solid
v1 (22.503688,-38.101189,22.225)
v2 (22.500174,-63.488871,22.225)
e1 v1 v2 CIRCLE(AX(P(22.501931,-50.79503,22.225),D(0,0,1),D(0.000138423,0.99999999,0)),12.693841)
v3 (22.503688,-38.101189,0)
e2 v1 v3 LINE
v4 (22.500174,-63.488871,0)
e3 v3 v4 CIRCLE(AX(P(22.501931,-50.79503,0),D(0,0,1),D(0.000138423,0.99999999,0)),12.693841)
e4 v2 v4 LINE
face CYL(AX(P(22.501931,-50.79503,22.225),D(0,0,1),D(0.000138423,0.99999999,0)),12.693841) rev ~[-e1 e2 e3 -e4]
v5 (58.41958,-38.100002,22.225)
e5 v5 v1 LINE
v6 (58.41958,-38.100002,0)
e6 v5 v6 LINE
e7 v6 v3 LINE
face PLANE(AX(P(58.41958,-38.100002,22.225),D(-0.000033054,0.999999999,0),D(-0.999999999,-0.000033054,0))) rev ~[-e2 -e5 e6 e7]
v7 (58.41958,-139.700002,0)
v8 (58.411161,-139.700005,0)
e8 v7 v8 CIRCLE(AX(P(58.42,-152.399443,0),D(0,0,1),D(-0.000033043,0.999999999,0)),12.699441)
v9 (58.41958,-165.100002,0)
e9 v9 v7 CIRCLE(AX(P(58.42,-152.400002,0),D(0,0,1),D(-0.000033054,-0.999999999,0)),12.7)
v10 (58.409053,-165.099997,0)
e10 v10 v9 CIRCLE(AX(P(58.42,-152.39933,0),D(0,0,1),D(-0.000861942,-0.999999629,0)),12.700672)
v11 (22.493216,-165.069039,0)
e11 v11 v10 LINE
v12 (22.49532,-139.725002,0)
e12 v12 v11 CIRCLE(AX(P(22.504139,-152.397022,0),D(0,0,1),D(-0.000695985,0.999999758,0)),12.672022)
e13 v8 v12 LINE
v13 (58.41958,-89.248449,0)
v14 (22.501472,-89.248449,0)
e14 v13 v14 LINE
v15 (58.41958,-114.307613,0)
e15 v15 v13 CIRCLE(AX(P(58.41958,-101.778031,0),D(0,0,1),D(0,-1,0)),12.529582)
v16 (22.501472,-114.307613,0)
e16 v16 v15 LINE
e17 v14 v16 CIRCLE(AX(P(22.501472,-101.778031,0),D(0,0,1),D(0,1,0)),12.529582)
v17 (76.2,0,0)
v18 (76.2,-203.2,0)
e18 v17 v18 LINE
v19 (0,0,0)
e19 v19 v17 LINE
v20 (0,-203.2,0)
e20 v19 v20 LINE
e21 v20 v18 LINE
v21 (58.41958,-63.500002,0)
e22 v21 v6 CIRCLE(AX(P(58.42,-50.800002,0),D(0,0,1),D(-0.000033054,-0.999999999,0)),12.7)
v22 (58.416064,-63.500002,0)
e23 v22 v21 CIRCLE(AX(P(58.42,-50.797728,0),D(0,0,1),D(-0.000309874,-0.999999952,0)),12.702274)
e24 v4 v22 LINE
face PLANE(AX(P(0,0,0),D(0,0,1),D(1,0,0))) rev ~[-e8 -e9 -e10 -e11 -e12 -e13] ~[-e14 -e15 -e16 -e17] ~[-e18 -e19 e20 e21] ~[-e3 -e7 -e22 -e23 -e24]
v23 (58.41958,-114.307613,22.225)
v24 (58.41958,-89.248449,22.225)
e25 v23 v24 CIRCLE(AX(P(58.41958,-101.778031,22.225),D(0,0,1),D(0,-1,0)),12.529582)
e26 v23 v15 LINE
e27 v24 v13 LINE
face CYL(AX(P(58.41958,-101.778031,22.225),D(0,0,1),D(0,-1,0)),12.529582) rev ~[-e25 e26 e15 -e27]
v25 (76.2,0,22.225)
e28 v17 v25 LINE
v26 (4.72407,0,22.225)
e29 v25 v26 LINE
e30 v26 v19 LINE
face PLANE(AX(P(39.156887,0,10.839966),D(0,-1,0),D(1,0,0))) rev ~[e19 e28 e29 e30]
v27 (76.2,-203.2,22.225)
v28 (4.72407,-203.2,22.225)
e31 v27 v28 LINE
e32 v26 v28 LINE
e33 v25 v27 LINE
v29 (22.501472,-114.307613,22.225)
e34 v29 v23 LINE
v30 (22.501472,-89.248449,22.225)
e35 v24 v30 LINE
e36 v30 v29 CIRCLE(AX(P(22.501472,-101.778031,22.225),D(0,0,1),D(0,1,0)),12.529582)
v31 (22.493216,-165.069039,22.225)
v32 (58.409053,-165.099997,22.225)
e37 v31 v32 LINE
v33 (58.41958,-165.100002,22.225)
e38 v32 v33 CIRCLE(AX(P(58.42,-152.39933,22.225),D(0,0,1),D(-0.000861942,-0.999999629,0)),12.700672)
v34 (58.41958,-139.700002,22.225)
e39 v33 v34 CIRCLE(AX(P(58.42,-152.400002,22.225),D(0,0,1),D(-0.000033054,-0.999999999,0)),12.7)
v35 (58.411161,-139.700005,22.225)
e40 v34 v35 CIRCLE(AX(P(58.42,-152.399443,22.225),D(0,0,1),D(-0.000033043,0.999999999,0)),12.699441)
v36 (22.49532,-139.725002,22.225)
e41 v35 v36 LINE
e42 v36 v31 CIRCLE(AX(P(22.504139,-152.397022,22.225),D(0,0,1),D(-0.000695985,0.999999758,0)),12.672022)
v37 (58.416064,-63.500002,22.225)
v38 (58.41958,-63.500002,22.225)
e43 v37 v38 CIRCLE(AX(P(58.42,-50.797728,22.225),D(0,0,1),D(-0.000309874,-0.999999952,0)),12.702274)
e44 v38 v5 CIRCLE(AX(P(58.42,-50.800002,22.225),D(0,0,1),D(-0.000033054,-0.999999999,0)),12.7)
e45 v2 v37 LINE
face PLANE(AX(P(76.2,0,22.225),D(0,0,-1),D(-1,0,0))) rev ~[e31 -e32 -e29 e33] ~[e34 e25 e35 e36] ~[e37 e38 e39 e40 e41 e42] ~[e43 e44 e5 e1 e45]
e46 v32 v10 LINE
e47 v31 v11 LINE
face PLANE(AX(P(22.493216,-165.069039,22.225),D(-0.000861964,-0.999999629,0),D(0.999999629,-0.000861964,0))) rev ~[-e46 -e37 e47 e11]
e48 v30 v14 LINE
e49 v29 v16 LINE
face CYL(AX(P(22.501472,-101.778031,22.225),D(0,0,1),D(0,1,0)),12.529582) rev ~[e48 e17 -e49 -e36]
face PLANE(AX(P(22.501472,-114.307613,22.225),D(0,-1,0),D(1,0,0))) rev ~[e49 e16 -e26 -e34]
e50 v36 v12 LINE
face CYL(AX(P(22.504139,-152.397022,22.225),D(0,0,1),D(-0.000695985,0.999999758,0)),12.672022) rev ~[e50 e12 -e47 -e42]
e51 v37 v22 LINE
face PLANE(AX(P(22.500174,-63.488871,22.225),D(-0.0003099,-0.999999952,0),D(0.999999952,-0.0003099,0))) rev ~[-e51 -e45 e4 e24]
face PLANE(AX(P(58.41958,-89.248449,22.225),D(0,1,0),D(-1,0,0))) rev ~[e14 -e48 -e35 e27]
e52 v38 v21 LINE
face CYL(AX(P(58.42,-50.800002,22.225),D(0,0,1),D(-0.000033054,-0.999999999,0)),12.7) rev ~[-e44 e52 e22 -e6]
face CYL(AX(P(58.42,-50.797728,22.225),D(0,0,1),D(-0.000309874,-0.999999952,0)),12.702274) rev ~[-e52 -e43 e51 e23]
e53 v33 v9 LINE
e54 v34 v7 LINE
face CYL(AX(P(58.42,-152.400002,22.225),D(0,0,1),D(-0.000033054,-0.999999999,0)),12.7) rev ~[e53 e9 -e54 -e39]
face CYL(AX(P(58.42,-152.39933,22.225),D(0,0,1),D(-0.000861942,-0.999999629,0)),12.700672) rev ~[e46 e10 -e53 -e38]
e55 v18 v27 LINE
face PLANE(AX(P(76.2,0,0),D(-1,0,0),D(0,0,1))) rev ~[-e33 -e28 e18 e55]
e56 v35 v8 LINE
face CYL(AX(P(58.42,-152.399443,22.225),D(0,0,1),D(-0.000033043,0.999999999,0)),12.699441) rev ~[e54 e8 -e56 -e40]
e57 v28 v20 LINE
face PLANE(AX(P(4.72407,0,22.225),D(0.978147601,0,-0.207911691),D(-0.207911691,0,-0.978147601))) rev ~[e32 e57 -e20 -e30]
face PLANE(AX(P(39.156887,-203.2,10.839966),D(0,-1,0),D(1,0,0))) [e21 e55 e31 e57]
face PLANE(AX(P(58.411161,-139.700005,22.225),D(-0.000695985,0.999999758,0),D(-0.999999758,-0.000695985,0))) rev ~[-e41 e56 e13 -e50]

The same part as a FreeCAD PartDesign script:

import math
import FreeCAD as App
import Part
import Sketcher
from FreeCAD import Vector
Q = App.Units.Quantity


def add_polygon(sketch, points):
    """Adds a closed chain of lines whose ends are joined by coincident constraints."""
    first, n = sketch.GeometryCount, len(points)
    for a, b in zip(points, points[1:] + points[:1]):
        sketch.addGeometry(Part.LineSegment(App.Vector(*a, 0), App.Vector(*b, 0)), False)
    for i in range(n):
        sketch.addConstraint(Sketcher.Constraint("Coincident", first + i, 2, first + (i + 1) % n, 1))

doc = App.newDocument("Part")
body = doc.addObject("PartDesign::Body", "Body")

# Sketch on XZ plane
sketch1 = body.newObject("Sketcher::SketchObject", "Sketch")
sketch1.AttachmentSupport = (doc.getObject("XZ_Plane"), [""])
sketch1.MapMode = "FlatFace"
add_polygon(sketch1, [(5, 22), (0, 0), (76, 0), (76, 22)])  # lines 0-3
sketch1.addConstraint([
    Sketcher.Constraint("Horizontal", 1),
    Sketcher.Constraint("Vertical", 2),
    Sketcher.Constraint("Horizontal", 3),
    Sketcher.Constraint("Coincident", 0, 2, -1, 1),
    Sketcher.Constraint("DistanceX", 1, 1, 1, 2, Q("3 in")),
    Sketcher.Constraint("Angle", 0, Q("-102 deg")),
    Sketcher.Constraint("DistanceY", 2, 1, 2, 2, Q("0.875 in")),
])
pad1 = body.newObject("PartDesign::Pad", "Pad")
pad1.Profile = sketch1
pad1.Length = Q("8 in")

# Sketch on XZ plane
sketch2 = body.newObject("Sketcher::SketchObject", "Sketch001")
sketch2.AttachmentSupport = (doc.getObject("XZ_Plane"), [""])
sketch2.MapMode = "FlatFace"
add_polygon(sketch2, [(5, 22), (0, 0), (76, 0), (76, 22)])  # lines 0-3
sketch2.addConstraint([
    Sketcher.Constraint("Horizontal", 1),
    Sketcher.Constraint("Vertical", 2),
    Sketcher.Constraint("Horizontal", 3),
    Sketcher.Constraint("Coincident", 0, 2, -1, 1),
    Sketcher.Constraint("DistanceX", 1, 1, 1, 2, Q("3 in")),
    Sketcher.Constraint("Angle", 0, Q("-102 deg")),
    Sketcher.Constraint("DistanceY", 2, 1, 2, 2, Q("0.875 in")),
])
pad2 = body.newObject("PartDesign::Pad", "Pad001")
pad2.Profile = sketch2
pad2.Length = Q("8 in")

# Sketch on XY plane
sketch3 = body.newObject("Sketcher::SketchObject", "Sketch002")
sketch3.AttachmentSupport = (doc.getObject("XY_Plane"), [""])
sketch3.MapMode = "FlatFace"
sketch3.AttachmentOffset = App.Placement(Vector(0, 0, 0.875 * 25.4), App.Rotation())
sketch3.addGeometry([
    Part.ArcOfCircle(Part.Circle(Vector(22.5019, -50.795, 0), Vector(0, 0, 1), 12.6938), math.radians(90), math.radians(270)),  # 0
    Part.LineSegment(Vector(22.5002, -63.4889, 0), Vector(58.4161, -63.5, 0)),  # 1
    Part.ArcOfCircle(Part.Circle(Vector(58.42, -50.7977, 0), Vector(0, 0, 1), 12.7023), math.radians(-90.02), math.radians(-90)),  # 2
    Part.ArcOfCircle(Part.Circle(Vector(58.42, -50.8, 0), Vector(0, 0, 1), 12.7), math.radians(-90), math.radians(90)),  # 3
    Part.LineSegment(Vector(58.4196, -38.1, 0), Vector(22.5037, -38.1012, 0)),  # 4
    Part.LineSegment(Vector(58.4196, -89.2484, 0), Vector(22.5015, -89.2484, 0)),  # 5
    Part.ArcOfCircle(Part.Circle(Vector(22.5015, -101.778, 0), Vector(0, 0, 1), 12.5296), math.radians(90), math.radians(270)),  # 6
    Part.LineSegment(Vector(22.5015, -114.3076, 0), Vector(58.4196, -114.3076, 0)),  # 7
    Part.ArcOfCircle(Part.Circle(Vector(58.4196, -101.778, 0), Vector(0, 0, 1), 12.5296), math.radians(-90), math.radians(90)),  # 8
    Part.LineSegment(Vector(58.4112, -139.7, 0), Vector(22.4953, -139.725, 0)),  # 9
    Part.ArcOfCircle(Part.Circle(Vector(22.5041, -152.397, 0), Vector(0, 0, 1), 12.672), math.radians(90), math.radians(270)),  # 10
    Part.LineSegment(Vector(22.4932, -165.069, 0), Vector(58.4091, -165.1, 0)),  # 11
    Part.ArcOfCircle(Part.Circle(Vector(58.42, -152.3993, 0), Vector(0, 0, 1), 12.7007), math.radians(-90.05), math.radians(-90)),  # 12
    Part.ArcOfCircle(Part.Circle(Vector(58.42, -152.4, 0), Vector(0, 0, 1), 12.7), math.radians(-90), math.radians(90)),  # 13
    Part.ArcOfCircle(Part.Circle(Vector(58.42, -152.3994, 0), Vector(0, 0, 1), 12.6994), math.radians(90), math.radians(90.04)),  # 14
], False)
sketch3.addConstraint([
    Sketcher.Constraint("Coincident", 0, 2, 1, 1),
    Sketcher.Constraint("Tangent", 1, 2, 2, 1),
    Sketcher.Constraint("Tangent", 2, 2, 3, 1),
    Sketcher.Constraint("Tangent", 3, 2, 4, 1),
    Sketcher.Constraint("Coincident", 4, 2, 0, 1),
    Sketcher.Constraint("Tangent", 5, 2, 6, 1),
    Sketcher.Constraint("Tangent", 6, 2, 7, 1),
    Sketcher.Constraint("Tangent", 7, 2, 8, 1),
    Sketcher.Constraint("Tangent", 8, 2, 5, 1),
    Sketcher.Constraint("Tangent", 9, 2, 10, 1),
    Sketcher.Constraint("Tangent", 10, 2, 11, 1),
    Sketcher.Constraint("Tangent", 11, 2, 12, 1),
    Sketcher.Constraint("Tangent", 12, 2, 13, 1),
    Sketcher.Constraint("Tangent", 13, 2, 14, 1),
    Sketcher.Constraint("Tangent", 14, 2, 9, 1),
    Sketcher.Constraint("Horizontal", 5),
    Sketcher.Constraint("Horizontal", 7),
    Sketcher.Constraint("Equal", 3, 13),
    Sketcher.Constraint("Vertical", 3, 3, 12, 3),
    Sketcher.Constraint("Vertical", 8, 3, 2, 2),
    Sketcher.Constraint("Vertical", 2, 2, 3, 2),
    Sketcher.Constraint("Vertical", 8, 2, 12, 2),
    Sketcher.Constraint("Vertical", 12, 2, 13, 2),
    Sketcher.Constraint("Equal", 1, 4),
    Sketcher.Constraint("Radius", 3, Q("0.5 in")),
    Sketcher.Constraint("DistanceY", 3, 3, -1, 1, Q("2.0000001 in")),
    Sketcher.Constraint("DistanceY", 13, 3, -1, 1, Q("6.0000001 in")),
    Sketcher.Constraint("DistanceX", -1, 1, 2, 3, Q("2.3 in")),
    Sketcher.Constraint("Radius", 0, Q("12.693841 mm")),
    Sketcher.Constraint("Radius", 12, Q("12.700672 mm")),
    Sketcher.Constraint("Radius", 14, Q("12.699441 mm")),
    Sketcher.Constraint("Radius", 2, Q("12.702274 mm")),
    Sketcher.Constraint("Radius", 6, Q("12.529582 mm")),
    Sketcher.Constraint("Radius", 10, Q("12.672022 mm")),
    Sketcher.Constraint("DistanceY", 2, 3, 0, 3, Q("0.002698 mm")),
    Sketcher.Constraint("DistanceY", 6, 3, 0, 3, Q("50.983001 mm")),
    Sketcher.Constraint("DistanceX", 0, 2, 6, 3, Q("0.001298 mm")),
    Sketcher.Constraint("Distance", 9, Q("35.91585 mm")),
    Sketcher.Constraint("DistanceX", 5, 2, 5, 1, Q("35.918108 mm")),
    Sketcher.Constraint("DistanceX", -1, 1, 0, 3, Q("22.501931 mm")),
    Sketcher.Constraint("DistanceY", 10, 3, -1, 1, Q("152.397022 mm")),
])
pocket1 = body.newObject("PartDesign::Pocket", "Pocket")
pocket1.Profile = sketch3
pocket1.Length = Q("1 in")

doc.recompute()
